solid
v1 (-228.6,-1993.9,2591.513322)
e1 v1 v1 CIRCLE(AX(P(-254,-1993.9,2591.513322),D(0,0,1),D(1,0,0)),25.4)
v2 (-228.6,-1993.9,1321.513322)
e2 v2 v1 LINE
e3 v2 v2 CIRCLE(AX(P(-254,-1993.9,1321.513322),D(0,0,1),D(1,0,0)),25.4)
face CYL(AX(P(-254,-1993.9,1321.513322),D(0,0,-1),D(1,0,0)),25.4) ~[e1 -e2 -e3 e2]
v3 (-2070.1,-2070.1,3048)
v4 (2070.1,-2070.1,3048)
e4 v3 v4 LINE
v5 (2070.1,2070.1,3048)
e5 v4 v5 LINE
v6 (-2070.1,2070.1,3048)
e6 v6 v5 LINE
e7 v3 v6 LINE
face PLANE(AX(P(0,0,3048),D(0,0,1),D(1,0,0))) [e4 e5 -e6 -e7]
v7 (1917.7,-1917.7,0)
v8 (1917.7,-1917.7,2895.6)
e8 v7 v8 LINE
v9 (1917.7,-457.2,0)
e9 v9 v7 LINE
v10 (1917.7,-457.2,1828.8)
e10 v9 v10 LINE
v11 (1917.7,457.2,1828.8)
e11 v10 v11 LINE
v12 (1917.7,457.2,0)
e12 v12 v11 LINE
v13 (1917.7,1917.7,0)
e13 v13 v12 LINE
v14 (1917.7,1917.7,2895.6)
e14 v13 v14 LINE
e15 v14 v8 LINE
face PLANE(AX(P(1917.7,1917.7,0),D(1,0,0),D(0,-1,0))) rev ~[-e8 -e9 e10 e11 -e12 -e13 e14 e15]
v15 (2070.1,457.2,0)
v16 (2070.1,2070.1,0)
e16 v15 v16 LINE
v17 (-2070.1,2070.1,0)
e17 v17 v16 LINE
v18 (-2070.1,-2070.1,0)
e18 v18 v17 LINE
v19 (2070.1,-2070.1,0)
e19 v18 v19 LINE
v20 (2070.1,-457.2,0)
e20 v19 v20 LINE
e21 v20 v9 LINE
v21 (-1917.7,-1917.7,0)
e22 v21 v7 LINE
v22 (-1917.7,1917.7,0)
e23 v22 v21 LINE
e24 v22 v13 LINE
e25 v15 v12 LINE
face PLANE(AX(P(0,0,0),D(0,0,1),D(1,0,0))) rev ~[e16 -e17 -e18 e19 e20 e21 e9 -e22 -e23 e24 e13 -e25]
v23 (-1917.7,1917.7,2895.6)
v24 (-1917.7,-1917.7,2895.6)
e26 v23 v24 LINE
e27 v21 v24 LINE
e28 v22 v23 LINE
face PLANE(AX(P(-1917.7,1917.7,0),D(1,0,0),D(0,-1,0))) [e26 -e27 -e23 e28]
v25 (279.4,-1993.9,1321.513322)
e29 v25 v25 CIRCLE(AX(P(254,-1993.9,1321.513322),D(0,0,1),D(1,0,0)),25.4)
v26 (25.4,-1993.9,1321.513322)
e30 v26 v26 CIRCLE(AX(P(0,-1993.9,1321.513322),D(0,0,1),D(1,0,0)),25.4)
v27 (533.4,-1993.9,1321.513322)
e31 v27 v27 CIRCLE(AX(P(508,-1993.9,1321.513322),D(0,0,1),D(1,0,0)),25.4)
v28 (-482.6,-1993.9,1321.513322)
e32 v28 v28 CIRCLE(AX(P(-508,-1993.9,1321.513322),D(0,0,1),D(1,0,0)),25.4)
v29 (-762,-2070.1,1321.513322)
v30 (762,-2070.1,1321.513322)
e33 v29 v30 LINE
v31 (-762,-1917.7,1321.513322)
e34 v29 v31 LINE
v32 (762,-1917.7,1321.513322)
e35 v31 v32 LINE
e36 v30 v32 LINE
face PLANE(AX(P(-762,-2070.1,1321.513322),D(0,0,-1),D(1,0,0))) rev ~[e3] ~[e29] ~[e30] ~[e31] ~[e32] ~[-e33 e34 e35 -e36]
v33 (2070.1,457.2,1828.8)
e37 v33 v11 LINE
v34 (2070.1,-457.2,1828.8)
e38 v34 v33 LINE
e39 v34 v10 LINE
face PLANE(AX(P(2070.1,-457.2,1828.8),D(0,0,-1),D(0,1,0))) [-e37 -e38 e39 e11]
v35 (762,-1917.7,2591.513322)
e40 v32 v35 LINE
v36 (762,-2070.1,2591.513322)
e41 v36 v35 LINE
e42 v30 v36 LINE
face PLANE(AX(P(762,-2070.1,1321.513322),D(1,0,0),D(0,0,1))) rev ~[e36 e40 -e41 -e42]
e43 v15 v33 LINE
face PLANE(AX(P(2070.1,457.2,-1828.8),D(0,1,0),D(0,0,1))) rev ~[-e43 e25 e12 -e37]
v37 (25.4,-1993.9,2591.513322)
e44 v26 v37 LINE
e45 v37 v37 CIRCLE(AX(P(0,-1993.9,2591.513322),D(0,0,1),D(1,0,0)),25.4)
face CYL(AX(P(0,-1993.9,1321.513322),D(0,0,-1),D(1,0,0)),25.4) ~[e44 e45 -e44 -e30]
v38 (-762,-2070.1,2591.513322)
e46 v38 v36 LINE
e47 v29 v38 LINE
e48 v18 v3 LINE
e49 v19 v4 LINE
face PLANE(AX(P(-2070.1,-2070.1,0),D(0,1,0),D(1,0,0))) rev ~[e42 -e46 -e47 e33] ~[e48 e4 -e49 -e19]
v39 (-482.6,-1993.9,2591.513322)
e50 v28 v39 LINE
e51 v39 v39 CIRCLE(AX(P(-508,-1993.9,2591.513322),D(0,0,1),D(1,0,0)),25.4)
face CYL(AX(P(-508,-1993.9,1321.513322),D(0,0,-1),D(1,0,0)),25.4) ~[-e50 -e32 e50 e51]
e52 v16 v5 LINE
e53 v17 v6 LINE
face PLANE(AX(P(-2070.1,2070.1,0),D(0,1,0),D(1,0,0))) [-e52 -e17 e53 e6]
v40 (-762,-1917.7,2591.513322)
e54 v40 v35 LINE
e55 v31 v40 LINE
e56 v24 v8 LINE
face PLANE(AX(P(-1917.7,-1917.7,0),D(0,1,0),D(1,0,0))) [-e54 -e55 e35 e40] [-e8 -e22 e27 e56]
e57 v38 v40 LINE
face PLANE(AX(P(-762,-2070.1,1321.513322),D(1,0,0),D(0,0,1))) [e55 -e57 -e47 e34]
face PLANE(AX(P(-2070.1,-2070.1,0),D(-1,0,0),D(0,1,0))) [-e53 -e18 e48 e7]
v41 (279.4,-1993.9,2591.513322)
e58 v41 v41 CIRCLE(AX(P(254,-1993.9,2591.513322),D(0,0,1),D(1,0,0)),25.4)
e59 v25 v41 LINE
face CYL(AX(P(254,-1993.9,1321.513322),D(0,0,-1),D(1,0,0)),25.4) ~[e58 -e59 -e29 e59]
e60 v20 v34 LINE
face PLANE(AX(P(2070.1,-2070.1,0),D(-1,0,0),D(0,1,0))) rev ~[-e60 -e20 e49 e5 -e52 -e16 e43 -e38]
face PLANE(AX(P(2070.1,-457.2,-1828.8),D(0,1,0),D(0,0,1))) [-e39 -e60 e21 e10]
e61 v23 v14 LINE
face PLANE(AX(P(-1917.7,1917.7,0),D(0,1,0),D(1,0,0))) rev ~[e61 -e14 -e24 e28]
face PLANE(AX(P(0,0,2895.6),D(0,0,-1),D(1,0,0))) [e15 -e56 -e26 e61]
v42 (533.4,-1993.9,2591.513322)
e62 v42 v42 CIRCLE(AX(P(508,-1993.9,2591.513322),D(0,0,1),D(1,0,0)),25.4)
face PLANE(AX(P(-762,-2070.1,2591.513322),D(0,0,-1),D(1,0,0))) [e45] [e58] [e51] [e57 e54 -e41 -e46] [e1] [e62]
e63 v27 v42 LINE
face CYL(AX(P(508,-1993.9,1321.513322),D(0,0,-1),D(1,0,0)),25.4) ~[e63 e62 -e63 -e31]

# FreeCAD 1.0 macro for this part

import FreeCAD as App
import Part
import Sketcher
from FreeCAD import Vector
Q = App.Units.Quantity


def add_polygon(sketch, points):
    """Adds a closed chain of lines whose ends are joined by coincident constraints."""
    first, n = sketch.GeometryCount, len(points)
    for a, b in zip(points, points[1:] + points[:1]):
        sketch.addGeometry(Part.LineSegment(App.Vector(*a, 0), App.Vector(*b, 0)), False)
    for i in range(n):
        sketch.addConstraint(Sketcher.Constraint("Coincident", first + i, 2, first + (i + 1) % n, 1))

doc = App.newDocument("Part")
body = doc.addObject("PartDesign::Body", "Body")

# Sketch on XY plane
sketch1 = doc.addObject("Sketcher::SketchObject", "Sketch")
body.addObject(sketch1)
sketch1.AttachmentSupport = (doc.XY_Plane, [""])
sketch1.MapMode = "FlatFace"
add_polygon(sketch1, [(-2070, 2070), (-2070, -2070), (2070, -2070), (2070, 2070)])  # lines 0-3
sketch1.addConstraint(Sketcher.Constraint("Vertical", 0))
sketch1.addConstraint(Sketcher.Constraint("Horizontal", 1))
sketch1.addConstraint(Sketcher.Constraint("Vertical", 2))
sketch1.addConstraint(Sketcher.Constraint("Horizontal", 3))
sketch1.addConstraint(Sketcher.Constraint("Symmetric", 0, 2, 2, 2, -1, 1))
sketch1.addConstraint(Sketcher.Constraint("Equal", 3, 0))
sketch1.addConstraint(Sketcher.Constraint("DistanceX", 1, 1, 1, 2, Q("163 in")))
pad1 = doc.addObject("PartDesign::Pad", "Pad")
body.addObject(pad1)
pad1.Profile = sketch1
pad1.Length = Q("120 in")

# Sketch on XZ plane
sketch2 = doc.addObject("Sketcher::SketchObject", "Sketch001")
body.addObject(sketch2)
sketch2.AttachmentSupport = (doc.XZ_Plane, [""])
sketch2.MapMode = "FlatFace"
sketch2.AttachmentOffset = App.Placement(Vector(0, 0, 81.5 * 25.4), App.Rotation())
add_polygon(sketch2, [(-762, 2592), (-762, 1322), (762, 1322), (762, 2592)])  # lines 0-3
sketch2.addConstraint(Sketcher.Constraint("Vertical", 0))
sketch2.addConstraint(Sketcher.Constraint("Horizontal", 1))
sketch2.addConstraint(Sketcher.Constraint("Vertical", 2))
sketch2.addConstraint(Sketcher.Constraint("Horizontal", 3))
sketch2.addConstraint(Sketcher.Constraint("DistanceX", 1, 1, 1, 2, Q("60 in")))
sketch2.addConstraint(Sketcher.Constraint("DistanceY", 0, 2, 0, 1, Q("50 in")))
sketch2.addConstraint(Sketcher.Constraint("DistanceX", 0, 2, -1, 1, Q("30 in")))
sketch2.addConstraint(Sketcher.Constraint("DistanceY", -1, 1, 0, 2, 1321.513322))
pocket1 = doc.addObject("PartDesign::Pocket", "Pocket")
body.addObject(pocket1)
pocket1.Profile = sketch2
pocket1.Length = Q("6 in")

# Sketch on XY plane
sketch3 = doc.addObject("Sketcher::SketchObject", "Sketch002")
body.addObject(sketch3)
sketch3.AttachmentSupport = (doc.XY_Plane, [""])
sketch3.MapMode = "FlatFace"
add_polygon(sketch3, [(-1918, -1918), (-1918, 1918), (1918, 1918), (1918, -1918)])  # lines 0-3
sketch3.addConstraint(Sketcher.Constraint("Vertical", 0))
sketch3.addConstraint(Sketcher.Constraint("Horizontal", 1))
sketch3.addConstraint(Sketcher.Constraint("Vertical", 2))
sketch3.addConstraint(Sketcher.Constraint("Horizontal", 3))
sketch3.addConstraint(Sketcher.Constraint("Symmetric", 0, 2, 2, 2, -1, 1))
sketch3.addConstraint(Sketcher.Constraint("Equal", 3, 0))
sketch3.addConstraint(Sketcher.Constraint("DistanceX", 1, 1, 1, 2, Q("151 in")))
pocket2 = doc.addObject("PartDesign::Pocket", "Pocket001")
body.addObject(pocket2)
pocket2.Profile = sketch3
pocket2.Length = Q("114 in")
pocket2.Reversed = True

# Sketch on XY plane
sketch4 = doc.addObject("Sketcher::SketchObject", "Sketch003")
body.addObject(sketch4)
sketch4.AttachmentSupport = (doc.XY_Plane, [""])
sketch4.MapMode = "FlatFace"
sketch4.AttachmentOffset = App.Placement(Vector(0, 0, 1321.513322), App.Rotation())
sketch4.addGeometry(Part.Circle(Vector(-508, -1994, 0), Vector(0, 0, 1), 25), False)
sketch4.addGeometry(Part.Circle(Vector(0, -1994, 0), Vector(0, 0, 1), 25), False)
sketch4.addGeometry(Part.Circle(Vector(508, -1994, 0), Vector(0, 0, 1), 25), False)
sketch4.addGeometry(Part.Circle(Vector(-254, -1994, 0), Vector(0, 0, 1), 25), False)
sketch4.addGeometry(Part.Circle(Vector(254, -1994, 0), Vector(0, 0, 1), 25), False)
sketch4.addConstraint(Sketcher.Constraint("Equal", 0, 1))
sketch4.addConstraint(Sketcher.Constraint("Equal", 1, 2))
sketch4.addConstraint(Sketcher.Constraint("Equal", 2, 3))
sketch4.addConstraint(Sketcher.Constraint("Equal", 3, 4))
sketch4.addConstraint(Sketcher.Constraint("Symmetric", 0, 3, 2, 3, -2))
sketch4.addConstraint(Sketcher.Constraint("Symmetric", 3, 3, 4, 3, -2))
sketch4.addConstraint(Sketcher.Constraint("PointOnObject", 1, 3, -2))
sketch4.addConstraint(Sketcher.Constraint("Horizontal", 0, 3, 1, 3))
sketch4.addConstraint(Sketcher.Constraint("Horizontal", 2, 3, 3, 3))
sketch4.addConstraint(Sketcher.Constraint("Diameter", 0, Q("2 in")))
sketch4.addConstraint(Sketcher.Constraint("DistanceX", 0, 3, -1, 1, Q("20 in")))
sketch4.addConstraint(Sketcher.Constraint("DistanceX", 3, 3, -1, 1, Q("10 in")))
sketch4.addConstraint(Sketcher.Constraint("DistanceY", 0, 3, -1, 1, Q("78.5 in")))
pad2 = doc.addObject("PartDesign::Pad", "Pad001")
body.addObject(pad2)
pad2.Profile = sketch4
pad2.Length = Q("50 in")

# Sketch on YZ plane
sketch5 = doc.addObject("Sketcher::SketchObject", "Sketch004")
body.addObject(sketch5)
sketch5.AttachmentSupport = (doc.YZ_Plane, [""])
sketch5.MapMode = "FlatFace"
sketch5.AttachmentOffset = App.Placement(Vector(0, 0, 81.5 * 25.4), App.Rotation())
add_polygon(sketch5, [(-457, 1829), (-457, -1829), (457, -1829), (457, 1829)])  # lines 0-3
sketch5.addConstraint(Sketcher.Constraint("Vertical", 0))
sketch5.addConstraint(Sketcher.Constraint("Horizontal", 1))
sketch5.addConstraint(Sketcher.Constraint("Vertical", 2))
sketch5.addConstraint(Sketcher.Constraint("Horizontal", 3))
sketch5.addConstraint(Sketcher.Constraint("Symmetric", 0, 2, 2, 2, -1, 1))
sketch5.addConstraint(Sketcher.Constraint("DistanceX", 1, 1, 1, 2, Q("36 in")))
sketch5.addConstraint(Sketcher.Constraint("DistanceY", 0, 2, 0, 1, Q("144 in")))
pocket3 = doc.addObject("PartDesign::Pocket", "Pocket002")
body.addObject(pocket3)
pocket3.Profile = sketch5
pocket3.Length = Q("6 in")

doc.recompute()
